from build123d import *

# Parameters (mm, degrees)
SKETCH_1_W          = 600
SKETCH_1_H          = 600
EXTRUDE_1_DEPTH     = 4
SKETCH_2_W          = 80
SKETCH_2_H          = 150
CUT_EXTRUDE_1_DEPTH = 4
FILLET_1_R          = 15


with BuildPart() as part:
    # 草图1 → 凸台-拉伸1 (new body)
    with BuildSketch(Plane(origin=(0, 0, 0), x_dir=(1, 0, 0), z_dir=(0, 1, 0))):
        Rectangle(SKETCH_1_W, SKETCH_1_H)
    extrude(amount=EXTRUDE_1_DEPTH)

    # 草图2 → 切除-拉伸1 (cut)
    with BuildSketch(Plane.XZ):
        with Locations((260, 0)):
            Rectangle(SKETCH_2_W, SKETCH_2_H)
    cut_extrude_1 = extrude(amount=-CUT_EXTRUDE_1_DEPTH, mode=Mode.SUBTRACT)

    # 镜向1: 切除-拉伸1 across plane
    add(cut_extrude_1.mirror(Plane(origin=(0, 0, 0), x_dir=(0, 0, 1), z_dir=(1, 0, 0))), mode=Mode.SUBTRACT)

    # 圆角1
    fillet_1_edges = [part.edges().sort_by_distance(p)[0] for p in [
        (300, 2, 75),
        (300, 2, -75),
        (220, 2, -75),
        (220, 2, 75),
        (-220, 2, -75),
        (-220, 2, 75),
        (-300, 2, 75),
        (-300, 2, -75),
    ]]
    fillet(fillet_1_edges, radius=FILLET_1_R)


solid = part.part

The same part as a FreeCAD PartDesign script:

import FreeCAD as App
import Part
import Sketcher

V = App.Vector


def edges_at(feature, points):
    """Names of the edges that pass closest to the given points."""
    edges = feature.Shape.Edges
    near = lambda p: min(range(len(edges)), key=lambda i: edges[i].distToShape(Part.Vertex(*p))[0])
    return sorted({f"Edge{near(p) + 1}" for p in points})


def add_polygon(sketch, points):
    """Adds a closed chain of lines whose ends are joined by coincident constraints."""
    first, n = sketch.GeometryCount, len(points)
    for a, b in zip(points, points[1:] + points[:1]):
        sketch.addGeometry(Part.LineSegment(App.Vector(*a, 0), App.Vector(*b, 0)), False)
    for i in range(n):
        sketch.addConstraint(Sketcher.Constraint("Coincident", first + i, 2, first + (i + 1) % n, 1))

doc = App.newDocument("Part")
params = doc.addObject("Spreadsheet::Sheet", "Params")
for row, (alias, value) in enumerate([
    ("sketch1_width", "600 mm"),
    ("pad1_length", "4 mm"),
    ("sketch2_width", "80 mm"),
    ("sketch2_height", "150 mm"),
    ("pocket1_length", "4 mm"),
    ("fillet_radius", "15 mm"),
], start=1):
    params.set(f"A{row}", alias)
    params.set(f"B{row}", "=" + value)
    params.setAlias(f"B{row}", alias)

body = doc.addObject("PartDesign::Body", "Body")

# Sketch on XZ plane
sketch1 = body.newObject("Sketcher::SketchObject", "Sketch")
sketch1.AttachmentSupport = (doc.getObject("XZ_Plane"), [""])
sketch1.MapMode = "FlatFace"
add_polygon(sketch1, [(-300, -300), (-300, 300), (300, 300), (300, -300)])  # lines 0-3
sketch1.addConstraint([
    Sketcher.Constraint("Vertical", 0),
    Sketcher.Constraint("Horizontal", 1),
    Sketcher.Constraint("Vertical", 2),
    Sketcher.Constraint("Horizontal", 3),
    Sketcher.Constraint("Symmetric", 0, 2, 2, 2, -1, 1),
    Sketcher.Constraint("Equal", 3, 0),
    Sketcher.Constraint("DistanceX", 1, 1, 1, 2, 600.0),
])
sketch1.setExpression("Constraints[10]", "Params.sketch1_width")
pad1 = body.newObject("PartDesign::Pad", "Pad")
pad1.Profile = sketch1
pad1.setExpression("Length", "Params.pad1_length")
pad1.Reversed = True

# Sketch on XZ plane
sketch2 = body.newObject("Sketcher::SketchObject", "Sketch001")
sketch2.AttachmentSupport = (doc.getObject("XZ_Plane"), [""])
sketch2.MapMode = "FlatFace"
add_polygon(sketch2, [(220, 75), (220, -75), (300, -75), (300, 75)])  # lines 0-3
sketch2.addConstraint([
    Sketcher.Constraint("Vertical", 0),
    Sketcher.Constraint("Horizontal", 1),
    Sketcher.Constraint("Vertical", 2),
    Sketcher.Constraint("Horizontal", 3),
    Sketcher.Constraint("DistanceX", 1, 1, 1, 2, 80.0),
    Sketcher.Constraint("DistanceY", 0, 2, 0, 1, 150.0),
    Sketcher.Constraint("DistanceX", -1, 1, 0, 2, 220.0),
    Sketcher.Constraint("DistanceY", 0, 2, -1, 1, 75.0),
])
sketch2.setExpression("Constraints[8]", "Params.sketch2_width")
sketch2.setExpression("Constraints[9]", "Params.sketch2_height")
pocket1 = body.newObject("PartDesign::Pocket", "Pocket")
pocket1.Profile = sketch2
pocket1.setExpression("Length", "Params.pocket1_length")
doc.recompute()

mirrored = body.newObject("PartDesign::Mirrored", "Mirrored")
mirrored.Originals = [pocket1]
mirrored.MirrorPlane = (doc.getObject("YZ_Plane"), [""])
body.Tip = mirrored
doc.recompute()

fillet = body.newObject("PartDesign::Fillet", "Fillet")
fillet.Base = (mirrored, edges_at(mirrored, [
    (300, 2, 75),
    (300, 2, -75),
    (220, 2, -75),
    (220, 2, 75),
    (-220, 2, -75),
    (-220, 2, 75),
    (-300, 2, 75),
    (-300, 2, -75),
]))
fillet.setExpression("Radius", "Params.fillet_radius")

doc.recompute()
